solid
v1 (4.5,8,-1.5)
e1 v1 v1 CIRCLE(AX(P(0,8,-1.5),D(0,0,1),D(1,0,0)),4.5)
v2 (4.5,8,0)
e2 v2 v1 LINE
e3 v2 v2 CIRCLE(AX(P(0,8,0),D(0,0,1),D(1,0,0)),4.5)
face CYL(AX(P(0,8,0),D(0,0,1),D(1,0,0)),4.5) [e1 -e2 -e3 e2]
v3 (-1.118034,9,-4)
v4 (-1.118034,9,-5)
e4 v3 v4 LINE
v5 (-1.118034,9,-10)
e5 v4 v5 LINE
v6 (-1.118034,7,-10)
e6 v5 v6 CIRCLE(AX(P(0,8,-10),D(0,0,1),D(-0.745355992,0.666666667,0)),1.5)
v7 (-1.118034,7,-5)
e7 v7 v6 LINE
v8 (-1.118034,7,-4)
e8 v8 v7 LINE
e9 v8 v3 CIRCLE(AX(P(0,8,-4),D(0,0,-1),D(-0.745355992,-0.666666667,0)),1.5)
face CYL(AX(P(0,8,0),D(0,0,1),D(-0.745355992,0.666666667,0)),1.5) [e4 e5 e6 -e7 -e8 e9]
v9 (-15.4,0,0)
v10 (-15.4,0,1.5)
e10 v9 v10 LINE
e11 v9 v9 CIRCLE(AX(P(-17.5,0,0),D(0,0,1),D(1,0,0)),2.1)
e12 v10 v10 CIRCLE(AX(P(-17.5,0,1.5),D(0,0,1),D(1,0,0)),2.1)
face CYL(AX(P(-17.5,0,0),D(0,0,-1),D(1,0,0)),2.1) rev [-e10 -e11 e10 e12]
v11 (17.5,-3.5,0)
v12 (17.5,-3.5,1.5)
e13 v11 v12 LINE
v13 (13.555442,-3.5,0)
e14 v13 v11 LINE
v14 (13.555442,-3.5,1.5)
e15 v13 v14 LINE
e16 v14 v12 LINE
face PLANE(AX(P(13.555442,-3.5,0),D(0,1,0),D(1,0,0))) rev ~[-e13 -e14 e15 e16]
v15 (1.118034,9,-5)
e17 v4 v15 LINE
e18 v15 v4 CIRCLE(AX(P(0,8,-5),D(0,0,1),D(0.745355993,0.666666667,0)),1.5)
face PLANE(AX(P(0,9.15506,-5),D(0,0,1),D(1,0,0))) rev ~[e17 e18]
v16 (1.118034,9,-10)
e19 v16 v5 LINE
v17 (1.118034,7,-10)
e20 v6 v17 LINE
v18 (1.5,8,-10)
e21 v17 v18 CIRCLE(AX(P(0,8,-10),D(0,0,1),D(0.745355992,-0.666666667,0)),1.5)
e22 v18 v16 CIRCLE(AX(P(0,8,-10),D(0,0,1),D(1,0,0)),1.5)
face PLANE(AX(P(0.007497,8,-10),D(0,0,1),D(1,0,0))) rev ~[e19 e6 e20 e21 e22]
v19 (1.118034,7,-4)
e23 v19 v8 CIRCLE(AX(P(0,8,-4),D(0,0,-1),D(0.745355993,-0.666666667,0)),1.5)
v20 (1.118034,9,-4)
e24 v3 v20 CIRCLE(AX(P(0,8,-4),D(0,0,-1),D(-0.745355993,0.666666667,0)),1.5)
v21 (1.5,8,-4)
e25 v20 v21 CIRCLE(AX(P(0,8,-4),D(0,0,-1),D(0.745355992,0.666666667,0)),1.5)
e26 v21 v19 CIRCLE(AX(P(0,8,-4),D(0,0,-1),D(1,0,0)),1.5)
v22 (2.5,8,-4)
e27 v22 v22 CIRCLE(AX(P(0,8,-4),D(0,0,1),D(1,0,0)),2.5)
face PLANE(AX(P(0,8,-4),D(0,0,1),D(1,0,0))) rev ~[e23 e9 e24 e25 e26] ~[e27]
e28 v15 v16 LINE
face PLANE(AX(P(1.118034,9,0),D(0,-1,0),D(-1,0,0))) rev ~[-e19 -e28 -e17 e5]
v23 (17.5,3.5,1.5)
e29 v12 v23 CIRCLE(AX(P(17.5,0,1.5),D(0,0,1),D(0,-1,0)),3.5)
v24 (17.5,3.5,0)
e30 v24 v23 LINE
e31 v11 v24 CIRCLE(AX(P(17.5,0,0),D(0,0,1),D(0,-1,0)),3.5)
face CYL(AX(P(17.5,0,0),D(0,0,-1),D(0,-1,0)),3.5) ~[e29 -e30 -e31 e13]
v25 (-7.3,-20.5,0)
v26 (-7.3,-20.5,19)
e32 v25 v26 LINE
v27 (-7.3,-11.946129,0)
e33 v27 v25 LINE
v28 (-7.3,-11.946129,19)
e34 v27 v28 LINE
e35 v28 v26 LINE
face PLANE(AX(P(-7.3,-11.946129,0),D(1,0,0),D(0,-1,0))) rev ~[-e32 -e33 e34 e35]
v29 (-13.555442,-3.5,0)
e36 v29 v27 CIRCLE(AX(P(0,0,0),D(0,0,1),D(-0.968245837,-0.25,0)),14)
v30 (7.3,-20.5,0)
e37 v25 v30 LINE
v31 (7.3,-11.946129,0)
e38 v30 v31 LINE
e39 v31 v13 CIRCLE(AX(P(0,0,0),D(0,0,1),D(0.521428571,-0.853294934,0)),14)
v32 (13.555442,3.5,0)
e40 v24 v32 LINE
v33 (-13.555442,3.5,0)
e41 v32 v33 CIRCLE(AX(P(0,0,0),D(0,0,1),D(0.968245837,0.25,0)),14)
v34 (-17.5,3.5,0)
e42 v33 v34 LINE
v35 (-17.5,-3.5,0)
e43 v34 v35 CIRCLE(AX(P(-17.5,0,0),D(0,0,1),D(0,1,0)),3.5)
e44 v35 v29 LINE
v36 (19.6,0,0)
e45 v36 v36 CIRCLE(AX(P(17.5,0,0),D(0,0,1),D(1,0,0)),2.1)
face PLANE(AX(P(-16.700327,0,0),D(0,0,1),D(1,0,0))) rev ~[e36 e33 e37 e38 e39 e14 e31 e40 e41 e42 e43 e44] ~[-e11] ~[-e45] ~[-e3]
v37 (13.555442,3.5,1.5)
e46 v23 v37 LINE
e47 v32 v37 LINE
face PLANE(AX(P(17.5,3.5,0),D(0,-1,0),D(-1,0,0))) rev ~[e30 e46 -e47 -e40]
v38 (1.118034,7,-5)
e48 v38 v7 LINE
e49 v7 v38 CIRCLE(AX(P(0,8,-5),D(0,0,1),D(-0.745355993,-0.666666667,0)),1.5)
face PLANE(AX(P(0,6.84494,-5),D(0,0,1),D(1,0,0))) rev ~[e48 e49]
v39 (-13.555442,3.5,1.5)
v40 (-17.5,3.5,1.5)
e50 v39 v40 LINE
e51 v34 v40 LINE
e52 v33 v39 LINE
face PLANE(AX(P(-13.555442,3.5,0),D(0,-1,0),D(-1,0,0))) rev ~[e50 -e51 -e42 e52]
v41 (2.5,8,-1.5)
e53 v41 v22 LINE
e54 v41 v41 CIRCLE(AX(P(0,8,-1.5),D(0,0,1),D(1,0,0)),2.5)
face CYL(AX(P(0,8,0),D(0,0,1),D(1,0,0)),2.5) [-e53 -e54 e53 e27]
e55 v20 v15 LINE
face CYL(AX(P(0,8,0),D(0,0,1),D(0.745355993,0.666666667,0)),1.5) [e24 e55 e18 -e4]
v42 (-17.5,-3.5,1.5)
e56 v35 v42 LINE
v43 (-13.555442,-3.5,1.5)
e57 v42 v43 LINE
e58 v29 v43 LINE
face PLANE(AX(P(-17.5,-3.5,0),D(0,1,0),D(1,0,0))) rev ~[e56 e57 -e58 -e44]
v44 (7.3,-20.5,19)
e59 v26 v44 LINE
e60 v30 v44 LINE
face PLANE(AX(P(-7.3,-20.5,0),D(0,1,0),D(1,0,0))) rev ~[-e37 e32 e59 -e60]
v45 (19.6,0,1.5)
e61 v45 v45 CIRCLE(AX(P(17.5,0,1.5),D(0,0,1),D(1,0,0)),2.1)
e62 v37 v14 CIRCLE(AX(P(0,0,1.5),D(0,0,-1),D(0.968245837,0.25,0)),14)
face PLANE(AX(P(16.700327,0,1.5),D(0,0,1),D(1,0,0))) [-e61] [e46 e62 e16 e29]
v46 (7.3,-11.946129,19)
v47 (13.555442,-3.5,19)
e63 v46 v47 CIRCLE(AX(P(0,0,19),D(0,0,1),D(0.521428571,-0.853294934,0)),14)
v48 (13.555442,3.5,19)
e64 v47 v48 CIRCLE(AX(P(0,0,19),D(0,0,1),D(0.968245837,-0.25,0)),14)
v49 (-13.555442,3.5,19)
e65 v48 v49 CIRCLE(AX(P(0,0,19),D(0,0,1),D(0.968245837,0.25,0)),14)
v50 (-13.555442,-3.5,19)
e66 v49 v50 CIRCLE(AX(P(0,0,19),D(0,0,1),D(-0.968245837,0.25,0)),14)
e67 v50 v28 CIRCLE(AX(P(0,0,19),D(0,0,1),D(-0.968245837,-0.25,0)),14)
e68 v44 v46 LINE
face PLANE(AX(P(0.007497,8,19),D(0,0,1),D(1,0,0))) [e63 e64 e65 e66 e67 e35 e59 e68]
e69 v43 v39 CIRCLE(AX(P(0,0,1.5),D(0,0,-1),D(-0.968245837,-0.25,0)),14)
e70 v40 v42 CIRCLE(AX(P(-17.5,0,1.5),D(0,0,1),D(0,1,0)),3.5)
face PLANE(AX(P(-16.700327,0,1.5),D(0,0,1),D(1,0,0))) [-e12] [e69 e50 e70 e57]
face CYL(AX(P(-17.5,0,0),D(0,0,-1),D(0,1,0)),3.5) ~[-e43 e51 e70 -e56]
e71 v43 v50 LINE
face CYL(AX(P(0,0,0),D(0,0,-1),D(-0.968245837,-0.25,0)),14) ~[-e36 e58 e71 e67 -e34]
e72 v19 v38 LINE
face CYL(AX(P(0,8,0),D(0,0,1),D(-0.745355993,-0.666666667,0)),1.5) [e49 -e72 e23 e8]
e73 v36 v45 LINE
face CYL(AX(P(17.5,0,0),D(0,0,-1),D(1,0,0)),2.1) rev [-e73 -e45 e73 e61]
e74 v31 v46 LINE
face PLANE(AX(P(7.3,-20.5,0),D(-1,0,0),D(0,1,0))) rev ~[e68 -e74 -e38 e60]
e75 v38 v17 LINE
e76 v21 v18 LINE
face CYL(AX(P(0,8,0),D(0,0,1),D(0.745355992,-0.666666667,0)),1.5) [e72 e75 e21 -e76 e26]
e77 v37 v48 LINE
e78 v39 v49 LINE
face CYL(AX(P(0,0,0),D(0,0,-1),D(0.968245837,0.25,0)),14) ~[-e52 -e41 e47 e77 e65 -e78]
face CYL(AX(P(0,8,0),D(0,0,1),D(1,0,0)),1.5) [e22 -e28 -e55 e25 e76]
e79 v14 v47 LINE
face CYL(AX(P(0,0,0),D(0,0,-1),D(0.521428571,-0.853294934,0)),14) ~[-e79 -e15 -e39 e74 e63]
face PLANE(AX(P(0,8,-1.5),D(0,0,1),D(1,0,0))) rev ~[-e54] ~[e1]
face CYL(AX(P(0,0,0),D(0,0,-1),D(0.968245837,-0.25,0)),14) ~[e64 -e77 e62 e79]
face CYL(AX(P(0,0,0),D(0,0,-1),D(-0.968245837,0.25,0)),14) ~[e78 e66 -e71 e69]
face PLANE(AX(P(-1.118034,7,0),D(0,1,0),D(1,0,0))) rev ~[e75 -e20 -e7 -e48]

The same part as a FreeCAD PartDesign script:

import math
import FreeCAD as App
import Part
import Sketcher
from FreeCAD import Vector

doc = App.newDocument("Part")
params = doc.addObject("Spreadsheet::Sheet", "Params")
for row, (alias, value) in enumerate([
    ("sketch1_diameter", "9 mm"),
    ("sketch1_radius", "14 mm"),
    ("sketch1_width", "14.6 mm"),
    ("pad1_length", "19 mm"),
    ("sketch2_radius", "14 mm"),
    ("sketch2_diameter", "4.2 mm"),
    ("sketch2_radius2", "3.5 mm"),
    ("pad2_length", "1.5 mm"),
    ("sketch3_diameter", "9 mm"),
    ("sketch3_diameter2", "5 mm"),
    ("pad3_length", "1.5 mm"),
    ("pad3_length2", "19 mm"),
    ("sketch4_diameter", "5 mm"),
    ("sketch4_radius", "1.5 mm"),
    ("pad4_length", "4 mm"),
    ("pad4_length2", "19 mm"),
    ("sketch5_radius", "1.5 mm"),
    ("pad5_length", "10 mm"),
    ("pad5_length2", "19 mm"),
    ("sketch6_radius", "1.5 mm"),
    ("pad6_length", "19 mm"),
    ("pad6_length2", "5 mm"),
], start=1):
    params.set(f"A{row}", alias)
    params.set(f"B{row}", "=" + value)
    params.setAlias(f"B{row}", alias)

body = doc.addObject("PartDesign::Body", "Body")

# Sketch on XY plane
sketch1 = body.newObject("Sketcher::SketchObject", "Sketch")
sketch1.AttachmentSupport = (doc.getObject("XY_Plane"), [""])
sketch1.MapMode = "FlatFace"
sketch1.addGeometry(Part.ArcOfCircle(Part.Circle(Vector(0, 0, 0), Vector(0, 0, 1), 14), math.radians(14), math.radians(166)), False)
sketch1.addGeometry(Part.ArcOfCircle(Part.Circle(Vector(0, 0, 0), Vector(0, 0, 1), 14), math.radians(166), math.radians(194)), False)
sketch1.addGeometry(Part.ArcOfCircle(Part.Circle(Vector(0, 0, 0), Vector(0, 0, 1), 14), math.radians(-166), math.radians(-121)), False)
sketch1.addGeometry(Part.LineSegment(Vector(-7.3, -11.9, 0), Vector(-7.3, -20.5, 0)), False)
sketch1.addGeometry(Part.LineSegment(Vector(-7.3, -20.5, 0), Vector(7.3, -20.5, 0)), False)
sketch1.addGeometry(Part.LineSegment(Vector(7.3, -20.5, 0), Vector(7.3, -11.9, 0)), False)
sketch1.addGeometry(Part.ArcOfCircle(Part.Circle(Vector(0, 0, 0), Vector(0, 0, 1), 14), math.radians(-59), math.radians(-14)), False)
sketch1.addGeometry(Part.ArcOfCircle(Part.Circle(Vector(0, 0, 0), Vector(0, 0, 1), 14), math.radians(-14), math.radians(14)), False)
sketch1.addGeometry(Part.Circle(Vector(0, 8, 0), Vector(0, 0, 1), 4.5), False)
sketch1.addConstraint(Sketcher.Constraint("Tangent", 0, 2, 1, 1))
sketch1.addConstraint(Sketcher.Constraint("Tangent", 1, 2, 2, 1))
sketch1.addConstraint(Sketcher.Constraint("Coincident", 2, 2, 3, 1))
sketch1.addConstraint(Sketcher.Constraint("Coincident", 3, 2, 4, 1))
sketch1.addConstraint(Sketcher.Constraint("Coincident", 4, 2, 5, 1))
sketch1.addConstraint(Sketcher.Constraint("Coincident", 5, 2, 6, 1))
sketch1.addConstraint(Sketcher.Constraint("Tangent", 6, 2, 7, 1))
sketch1.addConstraint(Sketcher.Constraint("Tangent", 7, 2, 0, 1))
sketch1.addConstraint(Sketcher.Constraint("Vertical", 3))
sketch1.addConstraint(Sketcher.Constraint("Horizontal", 4))
sketch1.addConstraint(Sketcher.Constraint("Vertical", 5))
sketch1.addConstraint(Sketcher.Constraint("Coincident", 0, 3, -1, 1))
sketch1.addConstraint(Sketcher.Constraint("Coincident", 2, 3, -1, 1))
sketch1.addConstraint(Sketcher.Constraint("Coincident", 6, 3, -1, 1))
sketch1.addConstraint(Sketcher.Constraint("PointOnObject", 8, 3, -2))
sketch1.addConstraint(Sketcher.Constraint("Horizontal", 2, 2, 5, 2))
sketch1.addConstraint(Sketcher.Constraint("Horizontal", 1, 2, 6, 2))
sketch1.addConstraint(Sketcher.Constraint("Horizontal", 0, 2, 7, 2))
sketch1.addConstraint(Sketcher.Constraint("Vertical", 0, 2, 1, 2))
sketch1.addConstraint(Sketcher.Constraint("Diameter", 8, 9.0))
sketch1.addConstraint(Sketcher.Constraint("Radius", 0, 14.0))
sketch1.addConstraint(Sketcher.Constraint("DistanceX", 4, 1, 4, 2, 14.6))
sketch1.addConstraint(Sketcher.Constraint("DistanceY", -1, 1, 8, 3, 8.0))
sketch1.addConstraint(Sketcher.Constraint("DistanceY", 1, 2, 0, 2, 7.0))
sketch1.addConstraint(Sketcher.Constraint("DistanceY", 3, 2, 1, 2, 17.0))
sketch1.setExpression("Constraints[19]", "Params.sketch1_diameter")
sketch1.setExpression("Constraints[20]", "Params.sketch1_radius")
sketch1.setExpression("Constraints[21]", "Params.sketch1_width")
pad1 = body.newObject("PartDesign::Pad", "Pad")
pad1.Profile = sketch1
pad1.setExpression("Length", "Params.pad1_length")

# Sketch on XY plane
sketch2 = body.newObject("Sketcher::SketchObject", "Sketch001")
sketch2.AttachmentSupport = (doc.getObject("XY_Plane"), [""])
sketch2.MapMode = "FlatFace"
sketch2.addGeometry(Part.LineSegment(Vector(-13.6, 3.5, 0), Vector(-17.5, 3.5, 0)), False)
sketch2.addGeometry(Part.ArcOfCircle(Part.Circle(Vector(-17.5, 0, 0), Vector(0, 0, 1), 3.5), math.radians(90), math.radians(270)), False)
sketch2.addGeometry(Part.LineSegment(Vector(-17.5, -3.5, 0), Vector(-13.6, -3.5, 0)), False)
sketch2.addGeometry(Part.ArcOfCircle(Part.Circle(Vector(0, 0, 0), Vector(0, 0, 1), 14), math.radians(166), math.radians(194)), False)
sketch2.addGeometry(Part.Circle(Vector(-17.5, 0, 0), Vector(0, 0, 1), 2.1), False)
sketch2.addGeometry(Part.LineSegment(Vector(17.5, 3.5, 0), Vector(13.6, 3.5, 0)), False)
sketch2.addGeometry(Part.ArcOfCircle(Part.Circle(Vector(0, 0, 0), Vector(0, 0, 1), 14), math.radians(-14), math.radians(14)), False)
sketch2.addGeometry(Part.LineSegment(Vector(13.6, -3.5, 0), Vector(17.5, -3.5, 0)), False)
sketch2.addGeometry(Part.ArcOfCircle(Part.Circle(Vector(17.5, 0, 0), Vector(0, 0, 1), 3.5), math.radians(-90), math.radians(90)), False)
sketch2.addGeometry(Part.Circle(Vector(17.5, 0, 0), Vector(0, 0, 1), 2.1), False)
sketch2.addConstraint(Sketcher.Constraint("Tangent", 0, 2, 1, 1))
sketch2.addConstraint(Sketcher.Constraint("Tangent", 1, 2, 2, 1))
sketch2.addConstraint(Sketcher.Constraint("Coincident", 2, 2, 3, 2))
sketch2.addConstraint(Sketcher.Constraint("Coincident", 3, 1, 0, 1))
sketch2.addConstraint(Sketcher.Constraint("Coincident", 5, 2, 6, 2))
sketch2.addConstraint(Sketcher.Constraint("Coincident", 6, 1, 7, 1))
sketch2.addConstraint(Sketcher.Constraint("Tangent", 7, 2, 8, 1))
sketch2.addConstraint(Sketcher.Constraint("Tangent", 8, 2, 5, 1))
sketch2.addConstraint(Sketcher.Constraint("Horizontal", 0))
sketch2.addConstraint(Sketcher.Constraint("Horizontal", 2))
sketch2.addConstraint(Sketcher.Constraint("Horizontal", 5))
sketch2.addConstraint(Sketcher.Constraint("Horizontal", 7))
sketch2.addConstraint(Sketcher.Constraint("Coincident", 3, 3, -1, 1))
sketch2.addConstraint(Sketcher.Constraint("Coincident", 6, 3, -1, 1))
sketch2.addConstraint(Sketcher.Constraint("Coincident", 4, 3, 1, 3))
sketch2.addConstraint(Sketcher.Constraint("Coincident", 9, 3, 8, 3))
sketch2.addConstraint(Sketcher.Constraint("Equal", 3, 6))
sketch2.addConstraint(Sketcher.Constraint("Equal", 1, 8))
sketch2.addConstraint(Sketcher.Constraint("Equal", 4, 9))
sketch2.addConstraint(Sketcher.Constraint("Symmetric", 1, 3, 8, 3, -1, 1))
sketch2.addConstraint(Sketcher.Constraint("PointOnObject", 1, 3, -1))
sketch2.addConstraint(Sketcher.Constraint("Radius", 3, 14.0))
sketch2.addConstraint(Sketcher.Constraint("Diameter", 4, 4.2))
sketch2.addConstraint(Sketcher.Constraint("Radius", 1, 3.5))
sketch2.addConstraint(Sketcher.Constraint("DistanceX", 1, 3, 8, 3, 35.0))
sketch2.setExpression("Constraints[21]", "Params.sketch2_radius")
sketch2.setExpression("Constraints[22]", "Params.sketch2_diameter")
sketch2.setExpression("Constraints[23]", "Params.sketch2_radius2")
pad2 = body.newObject("PartDesign::Pad", "Pad001")
pad2.Profile = sketch2
pad2.setExpression("Length", "Params.pad2_length")

# Sketch on XY plane
sketch3 = body.newObject("Sketcher::SketchObject", "Sketch002")
sketch3.AttachmentSupport = (doc.getObject("XY_Plane"), [""])
sketch3.MapMode = "FlatFace"
sketch3.addGeometry(Part.Circle(Vector(0, 8, 0), Vector(0, 0, 1), 4.5), False)
sketch3.addGeometry(Part.Circle(Vector(0, 8, 0), Vector(0, 0, 1), 2.5), False)
sketch3.addConstraint(Sketcher.Constraint("Coincident", 1, 3, 0, 3))
sketch3.addConstraint(Sketcher.Constraint("PointOnObject", 0, 3, -2))
sketch3.addConstraint(Sketcher.Constraint("Diameter", 0, 9.0))
sketch3.addConstraint(Sketcher.Constraint("Diameter", 1, 5.0))
sketch3.addConstraint(Sketcher.Constraint("DistanceY", -1, 1, 0, 3, 8.0))
sketch3.setExpression("Constraints[2]", "Params.sketch3_diameter")
sketch3.setExpression("Constraints[3]", "Params.sketch3_diameter2")
pad3 = body.newObject("PartDesign::Pad", "Pad002")
pad3.Profile = sketch3
pad3.Type = "TwoLengths"
pad3.setExpression("Length", "Params.pad3_length")
pad3.setExpression("Length2", "Params.pad3_length2")
pad3.Reversed = True

# Sketch on XY plane
sketch4 = body.newObject("Sketcher::SketchObject", "Sketch003")
sketch4.AttachmentSupport = (doc.getObject("XY_Plane"), [""])
sketch4.MapMode = "FlatFace"
sketch4.addGeometry(Part.Circle(Vector(0, 8, 0), Vector(0, 0, 1), 2.5), False)
sketch4.addGeometry(Part.ArcOfCircle(Part.Circle(Vector(0, 8, 0), Vector(0, 0, 1), 1.5), math.radians(42), math.radians(138)), False)
sketch4.addGeometry(Part.ArcOfCircle(Part.Circle(Vector(0, 8, 0), Vector(0, 0, 1), 1.5), math.radians(0), math.radians(42)), False)
sketch4.addGeometry(Part.ArcOfCircle(Part.Circle(Vector(0, 8, 0), Vector(0, 0, 1), 1.5), math.radians(-42), math.radians(0)), False)
sketch4.addGeometry(Part.ArcOfCircle(Part.Circle(Vector(0, 8, 0), Vector(0, 0, 1), 1.5), math.radians(-138), math.radians(-42)), False)
sketch4.addGeometry(Part.ArcOfCircle(Part.Circle(Vector(0, 8, 0), Vector(0, 0, 1), 1.5), math.radians(138), math.radians(222)), False)
sketch4.addConstraint(Sketcher.Constraint("Tangent", 1, 1, 2, 2))
sketch4.addConstraint(Sketcher.Constraint("Tangent", 2, 1, 3, 2))
sketch4.addConstraint(Sketcher.Constraint("Tangent", 3, 1, 4, 2))
sketch4.addConstraint(Sketcher.Constraint("Tangent", 4, 1, 5, 2))
sketch4.addConstraint(Sketcher.Constraint("Tangent", 5, 1, 1, 2))
sketch4.addConstraint(Sketcher.Constraint("Coincident", 1, 3, 0, 3))
sketch4.addConstraint(Sketcher.Constraint("Coincident", 3, 3, 0, 3))
sketch4.addConstraint(Sketcher.Constraint("Symmetric", 3, 1, 4, 1, -2))
sketch4.addConstraint(Sketcher.Constraint("Horizontal", 5, 3, 2, 1))
sketch4.addConstraint(Sketcher.Constraint("Horizontal", 1, 1, 5, 1))
sketch4.addConstraint(Sketcher.Constraint("Vertical", 1, 1, 3, 1))
sketch4.addConstraint(Sketcher.Constraint("Diameter", 0, 5.0))
sketch4.addConstraint(Sketcher.Constraint("Radius", 1, 1.5))
sketch4.addConstraint(Sketcher.Constraint("DistanceY", -1, 1, 0, 3, 8.0))
sketch4.addConstraint(Sketcher.Constraint("DistanceY", -1, 1, 1, 1, 9.0))
sketch4.setExpression("Constraints[11]", "Params.sketch4_diameter")
sketch4.setExpression("Constraints[12]", "Params.sketch4_radius")
pad4 = body.newObject("PartDesign::Pad", "Pad003")
pad4.Profile = sketch4
pad4.Type = "TwoLengths"
pad4.setExpression("Length", "Params.pad4_length")
pad4.setExpression("Length2", "Params.pad4_length2")
pad4.Reversed = True

# Sketch on XY plane
sketch5 = body.newObject("Sketcher::SketchObject", "Sketch004")
sketch5.AttachmentSupport = (doc.getObject("XY_Plane"), [""])
sketch5.MapMode = "FlatFace"
sketch5.addGeometry(Part.ArcOfCircle(Part.Circle(Vector(0, 8, 0), Vector(0, 0, 1), 1.5), math.radians(-42), math.radians(0)), False)
sketch5.addGeometry(Part.ArcOfCircle(Part.Circle(Vector(0, 8, 0), Vector(0, 0, 1), 1.5), math.radians(0), math.radians(42)), False)
sketch5.addGeometry(Part.LineSegment(Vector(1.1, 9, 0), Vector(-1.1, 9, 0)), False)
sketch5.addGeometry(Part.ArcOfCircle(Part.Circle(Vector(0, 8, 0), Vector(0, 0, 1), 1.5), math.radians(138), math.radians(222)), False)
sketch5.addGeometry(Part.LineSegment(Vector(-1.1, 7, 0), Vector(1.1, 7, 0)), False)
sketch5.addConstraint(Sketcher.Constraint("Tangent", 0, 2, 1, 1))
sketch5.addConstraint(Sketcher.Constraint("Coincident", 1, 2, 2, 1))
sketch5.addConstraint(Sketcher.Constraint("Coincident", 2, 2, 3, 1))
sketch5.addConstraint(Sketcher.Constraint("Coincident", 3, 2, 4, 1))
sketch5.addConstraint(Sketcher.Constraint("Coincident", 4, 2, 0, 1))
sketch5.addConstraint(Sketcher.Constraint("Horizontal", 2))
sketch5.addConstraint(Sketcher.Constraint("Horizontal", 4))
sketch5.addConstraint(Sketcher.Constraint("Coincident", 3, 3, 0, 3))
sketch5.addConstraint(Sketcher.Constraint("Equal", 0, 1))
sketch5.addConstraint(Sketcher.Constraint("Equal", 1, 3))
sketch5.addConstraint(Sketcher.Constraint("PointOnObject", 0, 3, -2))
sketch5.addConstraint(Sketcher.Constraint("Horizontal", 3, 3, 0, 2))
sketch5.addConstraint(Sketcher.Constraint("Vertical", 2, 2, 3, 2))
sketch5.addConstraint(Sketcher.Constraint("Radius", 0, 1.5))
sketch5.addConstraint(Sketcher.Constraint("DistanceY", -1, 1, 0, 3, 8.0))
sketch5.addConstraint(Sketcher.Constraint("DistanceY", -1, 1, 1, 2, 9.0))
sketch5.setExpression("Constraints[13]", "Params.sketch5_radius")
pad5 = body.newObject("PartDesign::Pad", "Pad004")
pad5.Profile = sketch5
pad5.Type = "TwoLengths"
pad5.setExpression("Length", "Params.pad5_length")
pad5.setExpression("Length2", "Params.pad5_length2")
pad5.Reversed = True

# Sketch on XY plane
sketch6 = body.newObject("Sketcher::SketchObject", "Sketch005")
sketch6.AttachmentSupport = (doc.getObject("XY_Plane"), [""])
sketch6.MapMode = "FlatFace"
sketch6.addGeometry(Part.ArcOfCircle(Part.Circle(Vector(0, 8, 0), Vector(0, 0, 1), 1.5), math.radians(-138), math.radians(-42)), False)
sketch6.addGeometry(Part.LineSegment(Vector(1.1, 7, 0), Vector(-1.1, 7, 0)), False)
sketch6.addGeometry(Part.LineSegment(Vector(-1.1, 9, 0), Vector(1.1, 9, 0)), False)
sketch6.addGeometry(Part.ArcOfCircle(Part.Circle(Vector(0, 8, 0), Vector(0, 0, 1), 1.5), math.radians(42), math.radians(138)), False)
sketch6.addConstraint(Sketcher.Constraint("Coincident", 0, 1, 1, 2))
sketch6.addConstraint(Sketcher.Constraint("Coincident", 1, 1, 0, 2))
sketch6.addConstraint(Sketcher.Constraint("Coincident", 2, 1, 3, 2))
sketch6.addConstraint(Sketcher.Constraint("Coincident", 3, 1, 2, 2))
sketch6.addConstraint(Sketcher.Constraint("Horizontal", 1))
sketch6.addConstraint(Sketcher.Constraint("Horizontal", 2))
sketch6.addConstraint(Sketcher.Constraint("Coincident", 3, 3, 0, 3))
sketch6.addConstraint(Sketcher.Constraint("Equal", 0, 3))
sketch6.addConstraint(Sketcher.Constraint("PointOnObject", 0, 3, -2))
sketch6.addConstraint(Sketcher.Constraint("Vertical", 0, 1, 2, 1))
sketch6.addConstraint(Sketcher.Constraint("Radius", 0, 1.5))
sketch6.addConstraint(Sketcher.Constraint("DistanceY", -1, 1, 0, 3, 8.0))
sketch6.addConstraint(Sketcher.Constraint("DistanceY", -1, 1, 0, 1, 7.0))
sketch6.setExpression("Constraints[10]", "Params.sketch6_radius")
pad6 = body.newObject("PartDesign::Pad", "Pad005")
pad6.Profile = sketch6
pad6.Type = "TwoLengths"
pad6.setExpression("Length", "Params.pad6_length")
pad6.setExpression("Length2", "Params.pad6_length2")

doc.recompute()
